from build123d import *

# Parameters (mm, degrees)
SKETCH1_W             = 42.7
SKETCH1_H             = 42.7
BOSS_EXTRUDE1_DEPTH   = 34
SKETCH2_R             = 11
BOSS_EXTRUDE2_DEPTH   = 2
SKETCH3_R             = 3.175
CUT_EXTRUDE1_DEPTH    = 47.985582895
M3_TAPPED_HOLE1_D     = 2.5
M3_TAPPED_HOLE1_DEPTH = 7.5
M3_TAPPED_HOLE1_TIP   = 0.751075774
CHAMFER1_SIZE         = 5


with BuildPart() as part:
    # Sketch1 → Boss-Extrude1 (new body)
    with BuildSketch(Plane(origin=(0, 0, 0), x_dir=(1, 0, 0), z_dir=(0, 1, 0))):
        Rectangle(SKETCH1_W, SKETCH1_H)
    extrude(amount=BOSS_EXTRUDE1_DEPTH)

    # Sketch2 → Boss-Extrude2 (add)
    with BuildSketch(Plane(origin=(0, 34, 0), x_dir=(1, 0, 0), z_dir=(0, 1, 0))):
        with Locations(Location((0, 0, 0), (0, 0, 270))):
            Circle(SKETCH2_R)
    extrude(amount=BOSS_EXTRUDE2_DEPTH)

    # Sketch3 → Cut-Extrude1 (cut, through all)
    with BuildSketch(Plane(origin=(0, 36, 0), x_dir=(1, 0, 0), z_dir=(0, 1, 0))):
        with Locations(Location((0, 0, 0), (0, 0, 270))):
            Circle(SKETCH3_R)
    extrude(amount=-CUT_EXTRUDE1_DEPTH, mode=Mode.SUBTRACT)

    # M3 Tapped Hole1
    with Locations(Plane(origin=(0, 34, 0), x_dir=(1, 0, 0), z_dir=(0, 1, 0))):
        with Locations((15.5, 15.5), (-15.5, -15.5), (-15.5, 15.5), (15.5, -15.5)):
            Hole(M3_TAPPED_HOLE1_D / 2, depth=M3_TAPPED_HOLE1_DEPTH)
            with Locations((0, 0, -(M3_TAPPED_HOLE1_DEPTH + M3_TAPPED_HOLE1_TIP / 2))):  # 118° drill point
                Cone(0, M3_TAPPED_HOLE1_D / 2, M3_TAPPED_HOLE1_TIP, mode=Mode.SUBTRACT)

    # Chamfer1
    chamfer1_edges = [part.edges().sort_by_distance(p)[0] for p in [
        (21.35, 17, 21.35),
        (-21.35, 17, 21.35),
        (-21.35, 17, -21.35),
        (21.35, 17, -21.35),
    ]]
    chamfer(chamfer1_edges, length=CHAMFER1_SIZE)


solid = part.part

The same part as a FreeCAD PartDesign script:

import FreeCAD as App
import Part
import Sketcher


def edges_at(feature, points):
    """Names of the edges that pass closest to the given points."""
    edges = feature.Shape.Edges
    near = lambda p: min(range(len(edges)), key=lambda i: edges[i].distToShape(Part.Vertex(*p))[0])
    return sorted({f"Edge{near(p) + 1}" for p in points})

doc = App.newDocument("Part")
params = doc.addObject("Spreadsheet::Sheet", "Params")
for row, (alias, value) in enumerate([
    ("sketch1_width", "42.7 mm"),
    ("pad1_length", "34 mm"),
    ("sketch2_diameter", "22 mm"),
    ("pad2_length", "2 mm"),
    ("sketch3_diameter", "6.35 mm"),
    ("sketch4_diameter", "2.5 mm"),
    ("hole_diameter", "2.5 mm"),
    ("hole_depth", "7.5 mm"),
    ("chamfer_size", "5 mm"),
], start=1):
    params.set(f"A{row}", alias)
    params.set(f"B{row}", "=" + value)
    params.setAlias(f"B{row}", alias)

body = doc.addObject("PartDesign::Body", "Body")

sketch1 = body.newObject("Sketcher::SketchObject", "Sketch")
sketch1.AttachmentSupport = (doc.getObject("XZ_Plane"), [""])
sketch1.MapMode = "FlatFace"
sketch1.addGeometry([
    Part.LineSegment(App.Vector(-21.35, -21.35, 0), App.Vector(-21.35, 21.35, 0)),
    Part.LineSegment(App.Vector(-21.35, 21.35, 0), App.Vector(21.35, 21.35, 0)),
    Part.LineSegment(App.Vector(21.35, 21.35, 0), App.Vector(21.35, -21.35, 0)),
    Part.LineSegment(App.Vector(21.35, -21.35, 0), App.Vector(-21.35, -21.35, 0)),
], False)
sketch1.addConstraint([
    Sketcher.Constraint("Coincident", 0, 2, 1, 1),
    Sketcher.Constraint("Coincident", 1, 2, 2, 1),
    Sketcher.Constraint("Coincident", 2, 2, 3, 1),
    Sketcher.Constraint("Coincident", 3, 2, 0, 1),
    Sketcher.Constraint("Vertical", 0),
    Sketcher.Constraint("Horizontal", 1),
    Sketcher.Constraint("Vertical", 2),
    Sketcher.Constraint("Horizontal", 3),
    Sketcher.Constraint("Symmetric", 0, 2, 2, 2, -1, 1),
    Sketcher.Constraint("Equal", 3, 0),
    Sketcher.Constraint("DistanceX", 1, 1, 1, 2, 42.7),
])
sketch1.setExpression("Constraints[10]", "Params.sketch1_width")
pad1 = body.newObject("PartDesign::Pad", "Pad")
pad1.Profile = sketch1
pad1.setExpression("Length", "Params.pad1_length")
pad1.Reversed = True

sketch2 = body.newObject("Sketcher::SketchObject", "Sketch001")
sketch2.AttachmentSupport = (doc.getObject("XZ_Plane"), [""])
sketch2.MapMode = "FlatFace"
sketch2.AttachmentOffset = App.Placement(App.Vector(0, 0, -34), App.Rotation())
sketch2.addGeometry(Part.Circle(App.Vector(0, 0, 0), App.Vector(0, 0, 1), 11), False)
sketch2.addConstraint([
    Sketcher.Constraint("Coincident", 0, 3, -1, 1),
    Sketcher.Constraint("Diameter", 0, 22.0),
])
sketch2.setExpression("Constraints[1]", "Params.sketch2_diameter")
pad2 = body.newObject("PartDesign::Pad", "Pad001")
pad2.Profile = sketch2
pad2.setExpression("Length", "Params.pad2_length")
pad2.Reversed = True

sketch3 = body.newObject("Sketcher::SketchObject", "Sketch002")
sketch3.AttachmentSupport = (doc.getObject("XZ_Plane"), [""])
sketch3.MapMode = "FlatFace"
sketch3.AttachmentOffset = App.Placement(App.Vector(0, 0, -36), App.Rotation())
sketch3.addGeometry(Part.Circle(App.Vector(0, 0, 0), App.Vector(0, 0, 1), 3.175), False)
sketch3.addConstraint([
    Sketcher.Constraint("Coincident", 0, 3, -1, 1),
    Sketcher.Constraint("Diameter", 0, 6.35),
])
sketch3.setExpression("Constraints[1]", "Params.sketch3_diameter")
pocket1 = body.newObject("PartDesign::Pocket", "Pocket")
pocket1.Profile = sketch3
pocket1.Type = "ThroughAll"
pocket1.Reversed = True

sketch4 = body.newObject("Sketcher::SketchObject", "Sketch003")
sketch4.AttachmentSupport = (doc.getObject("XZ_Plane"), [""])
sketch4.MapMode = "FlatFace"
sketch4.AttachmentOffset = App.Placement(App.Vector(0, 0, -34), App.Rotation())
sketch4.addGeometry([
    Part.Circle(App.Vector(15.5, -15.5, 0), App.Vector(0, 0, 1), 1.25),
    Part.Circle(App.Vector(-15.5, 15.5, 0), App.Vector(0, 0, 1), 1.25),
    Part.Circle(App.Vector(-15.5, -15.5, 0), App.Vector(0, 0, 1), 1.25),
    Part.Circle(App.Vector(15.5, 15.5, 0), App.Vector(0, 0, 1), 1.25),
], False)
sketch4.addConstraint([
    Sketcher.Constraint("Equal", 0, 1),
    Sketcher.Constraint("Equal", 1, 2),
    Sketcher.Constraint("Equal", 2, 3),
    Sketcher.Constraint("Symmetric", 0, 3, 1, 3, -1, 1),
    Sketcher.Constraint("Symmetric", 2, 3, 3, 3, -1, 1),
    Sketcher.Constraint("Symmetric", 0, 3, 2, 3, -2),
    Sketcher.Constraint("Diameter", 0, 2.5),
    Sketcher.Constraint("DistanceX", 1, 3, 0, 3, 31.0),
    Sketcher.Constraint("DistanceY", 0, 3, 1, 3, 31.0),
])
sketch4.setExpression("Constraints[6]", "Params.sketch4_diameter")
doc.recompute()
hole = body.newObject("PartDesign::Hole", "Hole")
hole.Profile = sketch4
hole.ThreadType = "None"
hole.setExpression("Diameter", "Params.hole_diameter")
hole.DepthType = "Dimension"
hole.setExpression("Depth", "Params.hole_depth")
hole.DrillPoint = "Angled"
hole.DrillPointAngle = 118
hole.Reversed = True
doc.recompute()

chamfer = body.newObject("PartDesign::Chamfer", "Chamfer")
chamfer.Base = (hole, edges_at(hole, [
    (21.35, 17, 21.35),
    (-21.35, 17, 21.35),
    (-21.35, 17, -21.35),
    (21.35, 17, -21.35),
]))
chamfer.setExpression("Size", "Params.chamfer_size")

doc.recompute()
